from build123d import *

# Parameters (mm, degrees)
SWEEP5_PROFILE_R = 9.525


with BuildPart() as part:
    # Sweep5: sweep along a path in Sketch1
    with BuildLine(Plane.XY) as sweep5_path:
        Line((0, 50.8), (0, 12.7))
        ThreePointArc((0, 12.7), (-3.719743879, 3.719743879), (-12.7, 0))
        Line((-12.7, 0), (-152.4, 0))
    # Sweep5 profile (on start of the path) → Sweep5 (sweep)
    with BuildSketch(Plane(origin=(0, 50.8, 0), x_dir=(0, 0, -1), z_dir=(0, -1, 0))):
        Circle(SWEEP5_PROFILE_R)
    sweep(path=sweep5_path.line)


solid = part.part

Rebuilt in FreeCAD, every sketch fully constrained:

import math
import FreeCAD as App
import Part
import Sketcher
Q = App.Units.Quantity

doc = App.newDocument("Part")
body = doc.addObject("PartDesign::Body", "Body")

# Sketch on XZ plane
sketch1 = doc.addObject("Sketcher::SketchObject", "Sketch")
body.addObject(sketch1)
sketch1.AttachmentSupport = (doc.XZ_Plane, [""])
sketch1.MapMode = "FlatFace"
sketch1.AttachmentOffset = App.Placement(App.Vector(0, 0, -2 * 25.4), App.Rotation())
sketch1.addGeometry(Part.Circle(App.Vector(0, 0, 0), App.Vector(0, 0, 1), 9.525), False)
sketch1.addConstraint([
    Sketcher.Constraint("Coincident", 0, 3, -1, 1),
    Sketcher.Constraint("Diameter", 0, Q("0.75 in")),
])

# Sketch on XY plane
sketch2 = doc.addObject("Sketcher::SketchObject", "Sketch001")
body.addObject(sketch2)
sketch2.AttachmentSupport = (doc.XY_Plane, [""])
sketch2.MapMode = "FlatFace"
sketch2.addGeometry([
    Part.LineSegment(App.Vector(0, 50.8, 0), App.Vector(0, 12.7, 0)),
    Part.ArcOfCircle(Part.Circle(App.Vector(-12.7, 12.7, 0), App.Vector(0, 0, 1), 12.7), math.radians(-90), math.radians(0)),
    Part.LineSegment(App.Vector(-12.7, 0, 0), App.Vector(-152.4, 0, 0)),
], False)
sketch2.addConstraint([
    Sketcher.Constraint("Tangent", 0, 2, 1, 2),
    Sketcher.Constraint("Tangent", 1, 1, 2, 1),
    Sketcher.Constraint("Vertical", 0),
    Sketcher.Constraint("Horizontal", 2),
    Sketcher.Constraint("PointOnObject", 0, 1, -2),
    Sketcher.Constraint("PointOnObject", 1, 1, -1),
    Sketcher.Constraint("Radius", 1, Q("0.5 in")),
    Sketcher.Constraint("DistanceX", 2, 2, 2, 1, Q("5.5 in")),
    Sketcher.Constraint("DistanceY", 0, 2, 0, 1, Q("1.5 in")),
])
doc.recompute()

additivepipe = doc.addObject("PartDesign::AdditivePipe", "AdditivePipe")
body.addObject(additivepipe)
additivepipe.Profile = sketch1
additivepipe.Spine = (sketch2, ["Edge1", "Edge2", "Edge3"])

doc.recompute()
